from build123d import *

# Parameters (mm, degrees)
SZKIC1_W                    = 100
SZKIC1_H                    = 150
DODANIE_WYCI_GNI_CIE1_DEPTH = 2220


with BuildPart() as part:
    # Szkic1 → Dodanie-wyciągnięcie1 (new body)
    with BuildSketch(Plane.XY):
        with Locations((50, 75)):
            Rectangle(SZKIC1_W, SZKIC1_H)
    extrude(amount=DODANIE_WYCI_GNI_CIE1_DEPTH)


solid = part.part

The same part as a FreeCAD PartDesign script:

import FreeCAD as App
import Part
import Sketcher
from FreeCAD import Vector
Q = App.Units.Quantity


def add_polygon(sketch, points):
    """Adds a closed chain of lines whose ends are joined by coincident constraints."""
    first, n = sketch.GeometryCount, len(points)
    for a, b in zip(points, points[1:] + points[:1]):
        sketch.addGeometry(Part.LineSegment(App.Vector(*a, 0), App.Vector(*b, 0)), False)
    for i in range(n):
        sketch.addConstraint(Sketcher.Constraint("Coincident", first + i, 2, first + (i + 1) % n, 1))

doc = App.newDocument("Part")
body = doc.addObject("PartDesign::Body", "Body")

# Sketch on XY plane
sketch1 = body.newObject("Sketcher::SketchObject", "Sketch")
sketch1.AttachmentSupport = (doc.getObject("XY_Plane"), [""])
sketch1.MapMode = "FlatFace"
add_polygon(sketch1, [(0, 150), (0, 0), (100, 0), (100, 150)])  # lines 0-3
sketch1.addConstraint(Sketcher.Constraint("Vertical", 0))
sketch1.addConstraint(Sketcher.Constraint("Horizontal", 1))
sketch1.addConstraint(Sketcher.Constraint("Vertical", 2))
sketch1.addConstraint(Sketcher.Constraint("Horizontal", 3))
sketch1.addConstraint(Sketcher.Constraint("Coincident", 0, 2, -1, 1))
sketch1.addConstraint(Sketcher.Constraint("DistanceX", 1, 1, 1, 2, Q("100 mm")))
sketch1.addConstraint(Sketcher.Constraint("DistanceY", 0, 2, 0, 1, Q("150 mm")))
pad1 = body.newObject("PartDesign::Pad", "Pad")
pad1.Profile = sketch1
pad1.Length = 2220

doc.recompute()
